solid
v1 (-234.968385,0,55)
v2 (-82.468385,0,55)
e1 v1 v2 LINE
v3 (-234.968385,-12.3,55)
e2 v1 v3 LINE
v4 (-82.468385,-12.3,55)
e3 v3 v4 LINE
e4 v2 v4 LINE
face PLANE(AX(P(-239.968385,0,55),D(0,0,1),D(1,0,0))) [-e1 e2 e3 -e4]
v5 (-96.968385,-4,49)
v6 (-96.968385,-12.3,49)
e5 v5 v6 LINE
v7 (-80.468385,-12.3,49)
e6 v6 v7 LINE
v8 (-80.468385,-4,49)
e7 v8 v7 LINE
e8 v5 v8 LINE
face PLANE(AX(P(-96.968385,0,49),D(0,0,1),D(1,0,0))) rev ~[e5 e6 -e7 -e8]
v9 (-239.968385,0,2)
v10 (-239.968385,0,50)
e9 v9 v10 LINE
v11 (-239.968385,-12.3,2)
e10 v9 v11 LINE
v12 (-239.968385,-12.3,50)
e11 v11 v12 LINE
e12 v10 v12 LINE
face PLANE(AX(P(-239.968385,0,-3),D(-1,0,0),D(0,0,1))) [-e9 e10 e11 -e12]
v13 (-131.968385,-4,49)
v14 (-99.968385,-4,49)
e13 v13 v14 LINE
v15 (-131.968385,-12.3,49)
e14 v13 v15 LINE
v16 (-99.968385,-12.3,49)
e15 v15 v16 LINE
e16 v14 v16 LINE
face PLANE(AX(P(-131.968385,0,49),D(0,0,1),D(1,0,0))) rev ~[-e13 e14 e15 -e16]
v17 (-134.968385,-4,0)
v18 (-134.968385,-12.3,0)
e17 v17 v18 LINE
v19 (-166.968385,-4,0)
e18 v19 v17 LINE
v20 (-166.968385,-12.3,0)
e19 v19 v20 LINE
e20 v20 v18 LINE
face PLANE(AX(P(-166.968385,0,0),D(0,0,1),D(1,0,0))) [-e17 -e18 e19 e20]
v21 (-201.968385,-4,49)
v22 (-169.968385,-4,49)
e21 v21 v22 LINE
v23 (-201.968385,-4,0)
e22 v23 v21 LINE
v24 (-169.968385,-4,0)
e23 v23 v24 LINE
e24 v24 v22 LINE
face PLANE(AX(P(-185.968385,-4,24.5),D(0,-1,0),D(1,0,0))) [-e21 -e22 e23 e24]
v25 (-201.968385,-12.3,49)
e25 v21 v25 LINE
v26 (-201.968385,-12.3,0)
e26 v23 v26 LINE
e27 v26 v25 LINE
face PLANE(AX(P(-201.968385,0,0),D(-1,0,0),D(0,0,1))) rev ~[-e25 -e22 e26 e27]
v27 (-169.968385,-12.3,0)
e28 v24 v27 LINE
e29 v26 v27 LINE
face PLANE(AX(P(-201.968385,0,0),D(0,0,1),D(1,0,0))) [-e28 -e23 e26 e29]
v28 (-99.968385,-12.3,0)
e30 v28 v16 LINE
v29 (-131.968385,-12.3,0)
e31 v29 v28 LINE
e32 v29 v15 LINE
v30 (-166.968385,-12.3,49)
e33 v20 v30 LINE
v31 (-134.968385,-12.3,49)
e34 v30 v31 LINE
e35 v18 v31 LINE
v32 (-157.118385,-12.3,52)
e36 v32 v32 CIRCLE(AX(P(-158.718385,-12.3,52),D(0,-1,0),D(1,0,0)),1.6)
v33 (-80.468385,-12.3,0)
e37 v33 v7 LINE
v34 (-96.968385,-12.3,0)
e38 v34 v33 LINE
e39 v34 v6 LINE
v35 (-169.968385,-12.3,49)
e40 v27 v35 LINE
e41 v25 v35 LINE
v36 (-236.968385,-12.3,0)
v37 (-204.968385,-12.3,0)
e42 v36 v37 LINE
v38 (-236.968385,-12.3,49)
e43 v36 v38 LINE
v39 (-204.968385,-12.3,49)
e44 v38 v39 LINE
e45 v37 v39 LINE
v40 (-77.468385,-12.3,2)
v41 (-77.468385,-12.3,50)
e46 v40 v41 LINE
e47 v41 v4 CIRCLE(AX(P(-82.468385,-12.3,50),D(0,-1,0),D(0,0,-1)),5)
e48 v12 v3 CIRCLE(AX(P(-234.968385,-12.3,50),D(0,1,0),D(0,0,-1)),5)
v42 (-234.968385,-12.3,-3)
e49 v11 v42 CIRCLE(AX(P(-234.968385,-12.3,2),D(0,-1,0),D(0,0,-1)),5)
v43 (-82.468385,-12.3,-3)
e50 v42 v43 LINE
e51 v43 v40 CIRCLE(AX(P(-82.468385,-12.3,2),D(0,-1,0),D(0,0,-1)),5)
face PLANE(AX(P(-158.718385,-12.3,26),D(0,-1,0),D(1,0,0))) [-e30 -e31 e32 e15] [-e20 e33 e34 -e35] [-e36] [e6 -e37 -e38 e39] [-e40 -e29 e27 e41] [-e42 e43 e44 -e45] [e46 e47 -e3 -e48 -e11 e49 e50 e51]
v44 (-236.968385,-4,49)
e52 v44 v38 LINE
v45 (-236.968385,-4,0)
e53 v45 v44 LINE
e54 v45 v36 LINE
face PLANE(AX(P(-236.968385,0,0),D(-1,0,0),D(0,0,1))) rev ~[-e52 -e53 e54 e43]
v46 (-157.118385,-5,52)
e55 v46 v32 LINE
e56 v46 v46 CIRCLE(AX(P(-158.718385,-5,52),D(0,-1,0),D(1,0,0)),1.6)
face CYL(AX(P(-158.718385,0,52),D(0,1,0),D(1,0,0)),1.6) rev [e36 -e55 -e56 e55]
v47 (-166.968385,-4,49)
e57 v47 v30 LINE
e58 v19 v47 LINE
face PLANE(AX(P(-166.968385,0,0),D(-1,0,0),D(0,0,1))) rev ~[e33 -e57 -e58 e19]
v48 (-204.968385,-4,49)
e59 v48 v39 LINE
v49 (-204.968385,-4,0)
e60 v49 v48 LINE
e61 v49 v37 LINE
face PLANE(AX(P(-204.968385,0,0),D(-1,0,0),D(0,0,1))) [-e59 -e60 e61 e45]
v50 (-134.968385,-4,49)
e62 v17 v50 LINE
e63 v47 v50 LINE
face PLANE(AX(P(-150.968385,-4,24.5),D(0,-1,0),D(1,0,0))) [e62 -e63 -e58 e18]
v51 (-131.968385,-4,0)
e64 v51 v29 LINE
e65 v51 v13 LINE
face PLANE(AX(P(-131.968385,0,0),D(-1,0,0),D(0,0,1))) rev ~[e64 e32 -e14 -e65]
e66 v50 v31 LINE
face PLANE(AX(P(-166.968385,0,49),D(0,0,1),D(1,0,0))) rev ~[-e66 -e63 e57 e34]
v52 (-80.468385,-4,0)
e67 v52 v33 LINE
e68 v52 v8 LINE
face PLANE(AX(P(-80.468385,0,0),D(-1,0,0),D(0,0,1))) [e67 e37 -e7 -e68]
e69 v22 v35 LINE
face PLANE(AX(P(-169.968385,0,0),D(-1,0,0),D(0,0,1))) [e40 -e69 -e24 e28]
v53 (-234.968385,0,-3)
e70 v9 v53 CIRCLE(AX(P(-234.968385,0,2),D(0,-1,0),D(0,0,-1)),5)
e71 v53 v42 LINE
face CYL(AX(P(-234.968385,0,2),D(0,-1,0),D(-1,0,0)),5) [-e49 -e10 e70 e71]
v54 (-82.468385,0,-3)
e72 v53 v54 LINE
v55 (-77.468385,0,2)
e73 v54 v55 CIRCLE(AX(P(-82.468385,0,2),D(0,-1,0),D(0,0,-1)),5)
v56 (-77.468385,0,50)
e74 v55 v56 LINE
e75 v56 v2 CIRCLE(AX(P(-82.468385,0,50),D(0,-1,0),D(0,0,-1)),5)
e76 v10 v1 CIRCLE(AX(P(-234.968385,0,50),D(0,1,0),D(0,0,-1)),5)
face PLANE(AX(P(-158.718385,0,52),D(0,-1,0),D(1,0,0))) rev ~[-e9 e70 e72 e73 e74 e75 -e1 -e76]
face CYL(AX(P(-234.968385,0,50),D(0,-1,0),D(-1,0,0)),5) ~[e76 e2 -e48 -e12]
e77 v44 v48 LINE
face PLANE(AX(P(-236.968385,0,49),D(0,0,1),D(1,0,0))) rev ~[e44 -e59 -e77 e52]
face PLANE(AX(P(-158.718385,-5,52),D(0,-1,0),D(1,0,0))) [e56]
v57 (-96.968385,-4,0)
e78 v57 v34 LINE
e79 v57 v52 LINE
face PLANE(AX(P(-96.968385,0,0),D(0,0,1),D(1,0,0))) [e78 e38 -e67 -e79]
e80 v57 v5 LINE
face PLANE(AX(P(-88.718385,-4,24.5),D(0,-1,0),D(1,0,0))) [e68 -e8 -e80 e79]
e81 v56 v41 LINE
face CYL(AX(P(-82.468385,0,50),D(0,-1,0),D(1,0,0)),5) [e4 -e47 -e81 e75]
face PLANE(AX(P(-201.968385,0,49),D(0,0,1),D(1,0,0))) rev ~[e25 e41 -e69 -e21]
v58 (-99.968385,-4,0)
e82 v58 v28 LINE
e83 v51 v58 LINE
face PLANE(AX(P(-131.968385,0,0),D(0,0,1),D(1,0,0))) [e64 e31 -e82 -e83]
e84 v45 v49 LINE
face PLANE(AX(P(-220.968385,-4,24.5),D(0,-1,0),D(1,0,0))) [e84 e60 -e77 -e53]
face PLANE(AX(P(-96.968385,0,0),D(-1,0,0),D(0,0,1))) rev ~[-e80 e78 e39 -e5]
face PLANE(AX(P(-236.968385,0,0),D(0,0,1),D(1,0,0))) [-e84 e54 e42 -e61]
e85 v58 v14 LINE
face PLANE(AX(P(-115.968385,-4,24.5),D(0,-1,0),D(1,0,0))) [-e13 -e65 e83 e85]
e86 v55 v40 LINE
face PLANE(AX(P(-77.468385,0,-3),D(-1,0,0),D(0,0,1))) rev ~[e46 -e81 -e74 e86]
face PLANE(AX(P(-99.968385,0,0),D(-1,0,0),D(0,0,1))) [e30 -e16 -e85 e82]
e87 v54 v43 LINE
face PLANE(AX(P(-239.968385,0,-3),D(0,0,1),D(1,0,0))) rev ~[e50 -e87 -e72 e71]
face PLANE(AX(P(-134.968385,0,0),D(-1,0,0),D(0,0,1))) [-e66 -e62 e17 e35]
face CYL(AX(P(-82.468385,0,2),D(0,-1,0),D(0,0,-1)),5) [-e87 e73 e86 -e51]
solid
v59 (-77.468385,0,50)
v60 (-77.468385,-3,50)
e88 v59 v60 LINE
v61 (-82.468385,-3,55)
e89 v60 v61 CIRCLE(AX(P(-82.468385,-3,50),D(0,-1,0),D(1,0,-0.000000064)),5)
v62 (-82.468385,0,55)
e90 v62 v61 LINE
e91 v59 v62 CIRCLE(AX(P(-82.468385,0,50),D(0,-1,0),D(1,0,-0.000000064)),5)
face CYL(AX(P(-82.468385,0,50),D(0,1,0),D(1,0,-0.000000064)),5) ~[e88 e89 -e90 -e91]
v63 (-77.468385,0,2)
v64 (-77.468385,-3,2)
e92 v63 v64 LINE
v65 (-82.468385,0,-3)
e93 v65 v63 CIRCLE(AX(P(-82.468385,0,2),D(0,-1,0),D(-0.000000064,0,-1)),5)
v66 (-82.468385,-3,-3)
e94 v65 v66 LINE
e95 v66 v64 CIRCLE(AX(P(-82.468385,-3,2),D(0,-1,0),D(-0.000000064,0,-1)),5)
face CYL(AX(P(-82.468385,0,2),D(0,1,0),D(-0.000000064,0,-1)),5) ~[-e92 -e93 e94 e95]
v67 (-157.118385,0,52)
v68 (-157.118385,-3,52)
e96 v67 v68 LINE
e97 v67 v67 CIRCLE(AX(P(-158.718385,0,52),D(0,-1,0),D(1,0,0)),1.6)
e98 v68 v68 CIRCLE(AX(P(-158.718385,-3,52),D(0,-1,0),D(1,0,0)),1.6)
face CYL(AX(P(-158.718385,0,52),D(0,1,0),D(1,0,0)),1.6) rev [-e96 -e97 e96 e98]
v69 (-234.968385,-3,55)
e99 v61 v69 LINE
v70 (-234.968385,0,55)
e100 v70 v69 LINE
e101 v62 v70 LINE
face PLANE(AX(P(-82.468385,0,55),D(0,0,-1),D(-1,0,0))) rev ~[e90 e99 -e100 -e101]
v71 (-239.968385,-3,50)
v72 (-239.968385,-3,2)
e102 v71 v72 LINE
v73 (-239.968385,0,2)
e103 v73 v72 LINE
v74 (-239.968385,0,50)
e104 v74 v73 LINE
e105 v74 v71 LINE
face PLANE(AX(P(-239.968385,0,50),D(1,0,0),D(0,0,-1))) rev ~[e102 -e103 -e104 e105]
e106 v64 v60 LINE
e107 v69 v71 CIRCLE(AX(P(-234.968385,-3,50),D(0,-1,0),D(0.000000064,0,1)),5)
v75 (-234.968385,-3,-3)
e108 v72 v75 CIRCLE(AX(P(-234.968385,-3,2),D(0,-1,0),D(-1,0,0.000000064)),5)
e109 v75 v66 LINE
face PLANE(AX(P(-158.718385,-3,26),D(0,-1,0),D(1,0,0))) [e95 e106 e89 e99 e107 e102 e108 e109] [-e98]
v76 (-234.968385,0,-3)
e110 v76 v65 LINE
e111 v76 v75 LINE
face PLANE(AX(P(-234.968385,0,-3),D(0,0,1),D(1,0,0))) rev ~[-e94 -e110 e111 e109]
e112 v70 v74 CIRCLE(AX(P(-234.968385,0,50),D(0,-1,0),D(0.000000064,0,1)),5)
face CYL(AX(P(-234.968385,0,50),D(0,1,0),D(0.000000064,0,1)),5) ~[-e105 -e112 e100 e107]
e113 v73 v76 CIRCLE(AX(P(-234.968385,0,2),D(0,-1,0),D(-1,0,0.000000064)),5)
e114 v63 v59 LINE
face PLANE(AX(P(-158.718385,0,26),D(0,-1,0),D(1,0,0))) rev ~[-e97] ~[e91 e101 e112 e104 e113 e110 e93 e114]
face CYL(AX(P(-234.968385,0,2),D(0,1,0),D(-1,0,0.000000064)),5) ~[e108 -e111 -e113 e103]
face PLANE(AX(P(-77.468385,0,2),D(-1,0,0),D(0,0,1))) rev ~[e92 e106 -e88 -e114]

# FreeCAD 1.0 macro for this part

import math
import FreeCAD as App
import Part
import Sketcher

V = App.Vector
Q = App.Units.Quantity


def edges_at(feature, points):
    """Names of the edges that pass closest to the given points."""
    edges = feature.Shape.Edges
    near = lambda p: min(range(len(edges)), key=lambda i: edges[i].distToShape(Part.Vertex(*p))[0])
    return sorted({f"Edge{near(p) + 1}" for p in points})

doc = App.newDocument("Part")
body = doc.addObject("PartDesign::Body", "Body")

sketch1 = doc.addObject("Sketcher::SketchObject", "Sketch")
body.addObject(sketch1)
sketch1.AttachmentSupport = (doc.XZ_Plane, [""])
sketch1.MapMode = "FlatFace"
sketch1.addGeometry([
    Part.LineSegment(V(-240, 55, 0), V(-240, -3, 0)),
    Part.LineSegment(V(-240, -3, 0), V(-77.5, -3, 0)),
    Part.LineSegment(V(-77.5, -3, 0), V(-77.5, 55, 0)),
    Part.LineSegment(V(-77.5, 55, 0), V(-240, 55, 0)),
    Part.LineSegment(V(-205, 0, 0), V(-237, 0, 0)),
    Part.LineSegment(V(-237, 0, 0), V(-237, 49, 0)),
    Part.LineSegment(V(-237, 49, 0), V(-205, 49, 0)),
    Part.LineSegment(V(-205, 49, 0), V(-205, 0, 0)),
    Part.LineSegment(V(-170, 0, 0), V(-202, 0, 0)),
    Part.LineSegment(V(-202, 0, 0), V(-202, 49, 0)),
    Part.LineSegment(V(-202, 49, 0), V(-170, 49, 0)),
    Part.LineSegment(V(-170, 49, 0), V(-170, 0, 0)),
    Part.LineSegment(V(-135, 0, 0), V(-167, 0, 0)),
    Part.LineSegment(V(-167, 0, 0), V(-167, 49, 0)),
    Part.LineSegment(V(-167, 49, 0), V(-135, 49, 0)),
    Part.LineSegment(V(-135, 49, 0), V(-135, 0, 0)),
    Part.LineSegment(V(-100, 0, 0), V(-132, 0, 0)),
    Part.LineSegment(V(-132, 0, 0), V(-132, 49, 0)),
    Part.LineSegment(V(-132, 49, 0), V(-100, 49, 0)),
    Part.LineSegment(V(-100, 49, 0), V(-100, 0, 0)),
    Part.LineSegment(V(-80.5, 0, 0), V(-97, 0, 0)),
    Part.LineSegment(V(-97, 0, 0), V(-97, 49, 0)),
    Part.LineSegment(V(-97, 49, 0), V(-80.5, 49, 0)),
    Part.LineSegment(V(-80.5, 49, 0), V(-80.5, 0, 0)),
    Part.Circle(V(-158.7, 52, 0), V(0, 0, 1), 1.6),
], False)
sketch1.addConstraint([
    Sketcher.Constraint("Coincident", 0, 2, 1, 1),
    Sketcher.Constraint("Coincident", 1, 2, 2, 1),
    Sketcher.Constraint("Coincident", 2, 2, 3, 1),
    Sketcher.Constraint("Coincident", 3, 2, 0, 1),
    Sketcher.Constraint("Coincident", 4, 2, 5, 1),
    Sketcher.Constraint("Coincident", 5, 2, 6, 1),
    Sketcher.Constraint("Coincident", 6, 2, 7, 1),
    Sketcher.Constraint("Coincident", 7, 2, 4, 1),
    Sketcher.Constraint("Coincident", 8, 2, 9, 1),
    Sketcher.Constraint("Coincident", 9, 2, 10, 1),
    Sketcher.Constraint("Coincident", 10, 2, 11, 1),
    Sketcher.Constraint("Coincident", 11, 2, 8, 1),
    Sketcher.Constraint("Coincident", 12, 2, 13, 1),
    Sketcher.Constraint("Coincident", 13, 2, 14, 1),
    Sketcher.Constraint("Coincident", 14, 2, 15, 1),
    Sketcher.Constraint("Coincident", 15, 2, 12, 1),
    Sketcher.Constraint("Coincident", 16, 2, 17, 1),
    Sketcher.Constraint("Coincident", 17, 2, 18, 1),
    Sketcher.Constraint("Coincident", 18, 2, 19, 1),
    Sketcher.Constraint("Coincident", 19, 2, 16, 1),
    Sketcher.Constraint("Coincident", 20, 2, 21, 1),
    Sketcher.Constraint("Coincident", 21, 2, 22, 1),
    Sketcher.Constraint("Coincident", 22, 2, 23, 1),
    Sketcher.Constraint("Coincident", 23, 2, 20, 1),
    Sketcher.Constraint("Vertical", 0),
    Sketcher.Constraint("Horizontal", 1),
    Sketcher.Constraint("Vertical", 2),
    Sketcher.Constraint("Horizontal", 3),
    Sketcher.Constraint("Horizontal", 4),
    Sketcher.Constraint("Vertical", 5),
    Sketcher.Constraint("Horizontal", 6),
    Sketcher.Constraint("Vertical", 7),
    Sketcher.Constraint("Horizontal", 8),
    Sketcher.Constraint("Vertical", 9),
    Sketcher.Constraint("Horizontal", 10),
    Sketcher.Constraint("Vertical", 11),
    Sketcher.Constraint("Horizontal", 12),
    Sketcher.Constraint("Vertical", 13),
    Sketcher.Constraint("Horizontal", 14),
    Sketcher.Constraint("Vertical", 15),
    Sketcher.Constraint("Horizontal", 16),
    Sketcher.Constraint("Vertical", 17),
    Sketcher.Constraint("Horizontal", 18),
    Sketcher.Constraint("Vertical", 19),
    Sketcher.Constraint("Horizontal", 20),
    Sketcher.Constraint("Vertical", 21),
    Sketcher.Constraint("Horizontal", 22),
    Sketcher.Constraint("Vertical", 23),
    Sketcher.Constraint("PointOnObject", 4, 2, -1),
    Sketcher.Constraint("PointOnObject", 8, 2, -1),
    Sketcher.Constraint("PointOnObject", 12, 2, -1),
    Sketcher.Constraint("PointOnObject", 16, 2, -1),
    Sketcher.Constraint("PointOnObject", 20, 2, -1),
    Sketcher.Constraint("Horizontal", 6, 2, 9, 2),
    Sketcher.Constraint("Horizontal", 10, 2, 13, 2),
    Sketcher.Constraint("Horizontal", 14, 2, 17, 2),
    Sketcher.Constraint("Horizontal", 18, 2, 21, 2),
    Sketcher.Constraint("Equal", 6, 8),
    Sketcher.Constraint("Equal", 10, 12),
    Sketcher.Constraint("Equal", 14, 16),
    Sketcher.Constraint("Diameter", 24, Q("3.2 mm")),
    Sketcher.Constraint("DistanceX", 4, 2, 4, 1, Q("32 mm")),
    Sketcher.Constraint("DistanceY", 0, 2, 0, 1, Q("58 mm")),
    Sketcher.Constraint("DistanceY", 5, 1, 5, 2, Q("49 mm")),
    Sketcher.Constraint("DistanceX", 1, 1, 1, 2, Q("162.5 mm")),
    Sketcher.Constraint("DistanceX", 20, 2, 20, 1, Q("16.5 mm")),
    Sketcher.Constraint("DistanceY", -1, 1, 24, 3, Q("52 mm")),
    Sketcher.Constraint("DistanceY", 0, 2, -1, 1, Q("3 mm")),
    Sketcher.Constraint("DistanceX", 0, 2, 4, 2, Q("3 mm")),
    Sketcher.Constraint("DistanceX", 7, 2, 8, 2, Q("3 mm")),
    Sketcher.Constraint("DistanceX", 11, 2, 12, 2, Q("3 mm")),
    Sketcher.Constraint("DistanceX", 15, 2, 16, 2, Q("3 mm")),
    Sketcher.Constraint("DistanceX", 19, 2, 20, 2, Q("3 mm")),
    Sketcher.Constraint("DistanceX", 0, 2, 24, 3, Q("81.25 mm")),
    Sketcher.Constraint("DistanceX", 24, 3, -1, 1, Q("158.718385 mm")),
])
pad1 = doc.addObject("PartDesign::Pad", "Pad")
body.addObject(pad1)
pad1.Profile = sketch1
pad1.Length = 12.3

sketch2 = doc.addObject("Sketcher::SketchObject", "Sketch001")
body.addObject(sketch2)
sketch2.AttachmentSupport = (doc.XZ_Plane, [""])
sketch2.MapMode = "FlatFace"
sketch2.addGeometry([
    Part.LineSegment(V(-237, 49, 0), V(-237, 0, 0)),
    Part.LineSegment(V(-237, 0, 0), V(-205, 0, 0)),
    Part.LineSegment(V(-205, 0, 0), V(-205, 49, 0)),
    Part.LineSegment(V(-205, 49, 0), V(-237, 49, 0)),
    Part.LineSegment(V(-202, 49, 0), V(-202, 0, 0)),
    Part.LineSegment(V(-202, 0, 0), V(-170, 0, 0)),
    Part.LineSegment(V(-170, 0, 0), V(-170, 49, 0)),
    Part.LineSegment(V(-170, 49, 0), V(-202, 49, 0)),
    Part.LineSegment(V(-167, 49, 0), V(-167, 0, 0)),
    Part.LineSegment(V(-167, 0, 0), V(-135, 0, 0)),
    Part.LineSegment(V(-135, 0, 0), V(-135, 49, 0)),
    Part.LineSegment(V(-135, 49, 0), V(-167, 49, 0)),
    Part.LineSegment(V(-132, 49, 0), V(-132, 0, 0)),
    Part.LineSegment(V(-132, 0, 0), V(-100, 0, 0)),
    Part.LineSegment(V(-100, 0, 0), V(-100, 49, 0)),
    Part.LineSegment(V(-100, 49, 0), V(-132, 49, 0)),
    Part.LineSegment(V(-97, 49, 0), V(-97, 0, 0)),
    Part.LineSegment(V(-97, 0, 0), V(-80, 0, 0)),
    Part.LineSegment(V(-80, 0, 0), V(-80, 49, 0)),
    Part.LineSegment(V(-80, 49, 0), V(-97, 49, 0)),
], False)
sketch2.addConstraint([
    Sketcher.Constraint("Coincident", 0, 2, 1, 1),
    Sketcher.Constraint("Coincident", 1, 2, 2, 1),
    Sketcher.Constraint("Coincident", 2, 2, 3, 1),
    Sketcher.Constraint("Coincident", 3, 2, 0, 1),
    Sketcher.Constraint("Coincident", 4, 2, 5, 1),
    Sketcher.Constraint("Coincident", 5, 2, 6, 1),
    Sketcher.Constraint("Coincident", 6, 2, 7, 1),
    Sketcher.Constraint("Coincident", 7, 2, 4, 1),
    Sketcher.Constraint("Coincident", 8, 2, 9, 1),
    Sketcher.Constraint("Coincident", 9, 2, 10, 1),
    Sketcher.Constraint("Coincident", 10, 2, 11, 1),
    Sketcher.Constraint("Coincident", 11, 2, 8, 1),
    Sketcher.Constraint("Coincident", 12, 2, 13, 1),
    Sketcher.Constraint("Coincident", 13, 2, 14, 1),
    Sketcher.Constraint("Coincident", 14, 2, 15, 1),
    Sketcher.Constraint("Coincident", 15, 2, 12, 1),
    Sketcher.Constraint("Coincident", 16, 2, 17, 1),
    Sketcher.Constraint("Coincident", 17, 2, 18, 1),
    Sketcher.Constraint("Coincident", 18, 2, 19, 1),
    Sketcher.Constraint("Coincident", 19, 2, 16, 1),
    Sketcher.Constraint("Vertical", 0),
    Sketcher.Constraint("Horizontal", 1),
    Sketcher.Constraint("Vertical", 2),
    Sketcher.Constraint("Horizontal", 3),
    Sketcher.Constraint("Vertical", 4),
    Sketcher.Constraint("Horizontal", 5),
    Sketcher.Constraint("Vertical", 6),
    Sketcher.Constraint("Horizontal", 7),
    Sketcher.Constraint("Vertical", 8),
    Sketcher.Constraint("Horizontal", 9),
    Sketcher.Constraint("Vertical", 10),
    Sketcher.Constraint("Horizontal", 11),
    Sketcher.Constraint("Vertical", 12),
    Sketcher.Constraint("Horizontal", 13),
    Sketcher.Constraint("Vertical", 14),
    Sketcher.Constraint("Horizontal", 15),
    Sketcher.Constraint("Vertical", 16),
    Sketcher.Constraint("Horizontal", 17),
    Sketcher.Constraint("Vertical", 18),
    Sketcher.Constraint("Horizontal", 19),
    Sketcher.Constraint("PointOnObject", 0, 2, -1),
    Sketcher.Constraint("PointOnObject", 4, 2, -1),
    Sketcher.Constraint("PointOnObject", 8, 2, -1),
    Sketcher.Constraint("PointOnObject", 12, 2, -1),
    Sketcher.Constraint("PointOnObject", 16, 2, -1),
    Sketcher.Constraint("Horizontal", 3, 2, 6, 2),
    Sketcher.Constraint("Horizontal", 7, 2, 10, 2),
    Sketcher.Constraint("Horizontal", 11, 2, 14, 2),
    Sketcher.Constraint("Horizontal", 15, 2, 18, 2),
    Sketcher.Constraint("Equal", 3, 5),
    Sketcher.Constraint("Equal", 7, 9),
    Sketcher.Constraint("Equal", 11, 13),
    Sketcher.Constraint("DistanceX", 1, 1, 1, 2, Q("32 mm")),
    Sketcher.Constraint("DistanceY", 0, 2, 0, 1, Q("49 mm")),
    Sketcher.Constraint("DistanceX", 17, 1, 17, 2, Q("16.5 mm")),
    Sketcher.Constraint("DistanceX", 1, 2, 4, 2, Q("3 mm")),
    Sketcher.Constraint("DistanceX", 5, 2, 8, 2, Q("3 mm")),
    Sketcher.Constraint("DistanceX", 9, 2, 12, 2, Q("3 mm")),
    Sketcher.Constraint("DistanceX", 13, 2, 16, 2, Q("3 mm")),
    Sketcher.Constraint("DistanceX", 0, 2, -1, 1, Q("236.968385 mm")),
])
pad2 = doc.addObject("PartDesign::Pad", "Pad001")
body.addObject(pad2)
pad2.Profile = sketch2
pad2.Length = 4

sketch3 = doc.addObject("Sketcher::SketchObject", "Sketch002")
body.addObject(sketch3)
sketch3.AttachmentSupport = (doc.XZ_Plane, [""])
sketch3.MapMode = "FlatFace"
sketch3.addGeometry(Part.Circle(V(-158.7, 52, 0), V(0, 0, 1), 1.6), False)
sketch3.addConstraint([
    Sketcher.Constraint("Diameter", 0, Q("3.2 mm")),
    Sketcher.Constraint("DistanceY", -1, 1, 0, 3, Q("52 mm")),
    Sketcher.Constraint("DistanceX", 0, 3, -1, 1, Q("158.718385 mm")),
])
pad3 = doc.addObject("PartDesign::Pad", "Pad002")
body.addObject(pad3)
pad3.Profile = sketch3
pad3.Length = 5
doc.recompute()

fillet = doc.addObject("PartDesign::Fillet", "Fillet")
body.addObject(fillet)
fillet.Base = (pad3, edges_at(pad3, [
    (-77.468, -6.15, -3),
    (-77.468, -6.15, 55),
    (-239.968, -6.15, -3),
    (-239.968, -6.15, 55),
]))
fillet.Radius = 5
body2 = doc.addObject("PartDesign::Body", "Body001")

sketch4 = doc.addObject("Sketcher::SketchObject", "Sketch003")
body2.addObject(sketch4)
sketch4.AttachmentSupport = (doc.getObject("XZ_Plane001"), [""])
sketch4.MapMode = "FlatFace"
sketch4.addGeometry([
    Part.LineSegment(V(-82.5, 55, 0), V(-235, 55, 0)),
    Part.ArcOfCircle(Part.Circle(V(-235, 50, 0), V(0, 0, 1), 5), math.radians(90), math.radians(180)),
    Part.LineSegment(V(-240, 50, 0), V(-240, 2, 0)),
    Part.ArcOfCircle(Part.Circle(V(-235, 2, 0), V(0, 0, 1), 5), math.radians(180), math.radians(270)),
    Part.LineSegment(V(-235, -3, 0), V(-82.5, -3, 0)),
    Part.ArcOfCircle(Part.Circle(V(-82.5, 2, 0), V(0, 0, 1), 5), math.radians(-90), math.radians(0)),
    Part.LineSegment(V(-77.5, 2, 0), V(-77.5, 50, 0)),
    Part.ArcOfCircle(Part.Circle(V(-82.5, 50, 0), V(0, 0, 1), 5), math.radians(0), math.radians(90)),
    Part.Circle(V(-158.7, 52, 0), V(0, 0, 1), 1.6),
], False)
sketch4.addConstraint([
    Sketcher.Constraint("Tangent", 0, 2, 1, 1),
    Sketcher.Constraint("Tangent", 1, 2, 2, 1),
    Sketcher.Constraint("Tangent", 2, 2, 3, 1),
    Sketcher.Constraint("Tangent", 3, 2, 4, 1),
    Sketcher.Constraint("Tangent", 4, 2, 5, 1),
    Sketcher.Constraint("Tangent", 5, 2, 6, 1),
    Sketcher.Constraint("Tangent", 6, 2, 7, 1),
    Sketcher.Constraint("Tangent", 7, 2, 0, 1),
    Sketcher.Constraint("Horizontal", 0),
    Sketcher.Constraint("Vertical", 2),
    Sketcher.Constraint("Horizontal", 4),
    Sketcher.Constraint("Vertical", 6),
    Sketcher.Constraint("Equal", 1, 3),
    Sketcher.Constraint("Equal", 3, 5),
    Sketcher.Constraint("Equal", 5, 7),
    Sketcher.Constraint("Radius", 1, Q("5 mm")),
    Sketcher.Constraint("Diameter", 8, Q("3.2 mm")),
    Sketcher.Constraint("DistanceY", 2, 2, 2, 1, Q("48 mm")),
    Sketcher.Constraint("DistanceX", 0, 2, 0, 1, Q("152.5 mm")),
    Sketcher.Constraint("DistanceY", -1, 1, 1, 3, Q("50 mm")),
    Sketcher.Constraint("DistanceY", -1, 1, 8, 3, Q("52 mm")),
    Sketcher.Constraint("DistanceX", 1, 3, 8, 3, Q("76.25 mm")),
    Sketcher.Constraint("DistanceX", 1, 3, -1, 1, Q("234.968385 mm")),
])
pad4 = doc.addObject("PartDesign::Pad", "Pad003")
body2.addObject(pad4)
pad4.Profile = sketch4
pad4.Length = 3

doc.recompute()
